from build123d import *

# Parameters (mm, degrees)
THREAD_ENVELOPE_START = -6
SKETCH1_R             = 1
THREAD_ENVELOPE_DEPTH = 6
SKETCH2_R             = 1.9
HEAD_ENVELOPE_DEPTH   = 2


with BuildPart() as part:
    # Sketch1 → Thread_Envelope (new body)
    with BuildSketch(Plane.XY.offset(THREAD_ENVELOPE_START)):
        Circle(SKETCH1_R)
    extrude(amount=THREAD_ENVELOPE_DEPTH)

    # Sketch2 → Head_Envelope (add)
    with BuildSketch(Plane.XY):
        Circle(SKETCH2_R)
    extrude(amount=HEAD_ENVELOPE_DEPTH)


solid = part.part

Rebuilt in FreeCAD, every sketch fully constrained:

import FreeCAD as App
import Part
import Sketcher
Q = App.Units.Quantity

doc = App.newDocument("Part")
body = doc.addObject("PartDesign::Body", "Body")

# Sketch on XY plane
sketch1 = body.newObject("Sketcher::SketchObject", "Sketch")
sketch1.AttachmentSupport = (doc.getObject("XY_Plane"), [""])
sketch1.MapMode = "FlatFace"
sketch1.AttachmentOffset = App.Placement(App.Vector(0, 0, -6), App.Rotation())
sketch1.addGeometry(Part.Circle(App.Vector(0, 0, 0), App.Vector(0, 0, 1), 1), False)
sketch1.addConstraint([
    Sketcher.Constraint("Coincident", 0, 3, -1, 1),
    Sketcher.Constraint("Diameter", 0, Q("2 mm")),
])
pad1 = body.newObject("PartDesign::Pad", "Pad")
pad1.Profile = sketch1
pad1.Length = 6

# Sketch on XY plane
sketch2 = body.newObject("Sketcher::SketchObject", "Sketch001")
sketch2.AttachmentSupport = (doc.getObject("XY_Plane"), [""])
sketch2.MapMode = "FlatFace"
sketch2.addGeometry(Part.Circle(App.Vector(0, 0, 0), App.Vector(0, 0, 1), 1.9), False)
sketch2.addConstraint([
    Sketcher.Constraint("Coincident", 0, 3, -1, 1),
    Sketcher.Constraint("Diameter", 0, Q("3.8 mm")),
])
pad2 = body.newObject("PartDesign::Pad", "Pad001")
pad2.Profile = sketch2
pad2.Length = 2

doc.recompute()
